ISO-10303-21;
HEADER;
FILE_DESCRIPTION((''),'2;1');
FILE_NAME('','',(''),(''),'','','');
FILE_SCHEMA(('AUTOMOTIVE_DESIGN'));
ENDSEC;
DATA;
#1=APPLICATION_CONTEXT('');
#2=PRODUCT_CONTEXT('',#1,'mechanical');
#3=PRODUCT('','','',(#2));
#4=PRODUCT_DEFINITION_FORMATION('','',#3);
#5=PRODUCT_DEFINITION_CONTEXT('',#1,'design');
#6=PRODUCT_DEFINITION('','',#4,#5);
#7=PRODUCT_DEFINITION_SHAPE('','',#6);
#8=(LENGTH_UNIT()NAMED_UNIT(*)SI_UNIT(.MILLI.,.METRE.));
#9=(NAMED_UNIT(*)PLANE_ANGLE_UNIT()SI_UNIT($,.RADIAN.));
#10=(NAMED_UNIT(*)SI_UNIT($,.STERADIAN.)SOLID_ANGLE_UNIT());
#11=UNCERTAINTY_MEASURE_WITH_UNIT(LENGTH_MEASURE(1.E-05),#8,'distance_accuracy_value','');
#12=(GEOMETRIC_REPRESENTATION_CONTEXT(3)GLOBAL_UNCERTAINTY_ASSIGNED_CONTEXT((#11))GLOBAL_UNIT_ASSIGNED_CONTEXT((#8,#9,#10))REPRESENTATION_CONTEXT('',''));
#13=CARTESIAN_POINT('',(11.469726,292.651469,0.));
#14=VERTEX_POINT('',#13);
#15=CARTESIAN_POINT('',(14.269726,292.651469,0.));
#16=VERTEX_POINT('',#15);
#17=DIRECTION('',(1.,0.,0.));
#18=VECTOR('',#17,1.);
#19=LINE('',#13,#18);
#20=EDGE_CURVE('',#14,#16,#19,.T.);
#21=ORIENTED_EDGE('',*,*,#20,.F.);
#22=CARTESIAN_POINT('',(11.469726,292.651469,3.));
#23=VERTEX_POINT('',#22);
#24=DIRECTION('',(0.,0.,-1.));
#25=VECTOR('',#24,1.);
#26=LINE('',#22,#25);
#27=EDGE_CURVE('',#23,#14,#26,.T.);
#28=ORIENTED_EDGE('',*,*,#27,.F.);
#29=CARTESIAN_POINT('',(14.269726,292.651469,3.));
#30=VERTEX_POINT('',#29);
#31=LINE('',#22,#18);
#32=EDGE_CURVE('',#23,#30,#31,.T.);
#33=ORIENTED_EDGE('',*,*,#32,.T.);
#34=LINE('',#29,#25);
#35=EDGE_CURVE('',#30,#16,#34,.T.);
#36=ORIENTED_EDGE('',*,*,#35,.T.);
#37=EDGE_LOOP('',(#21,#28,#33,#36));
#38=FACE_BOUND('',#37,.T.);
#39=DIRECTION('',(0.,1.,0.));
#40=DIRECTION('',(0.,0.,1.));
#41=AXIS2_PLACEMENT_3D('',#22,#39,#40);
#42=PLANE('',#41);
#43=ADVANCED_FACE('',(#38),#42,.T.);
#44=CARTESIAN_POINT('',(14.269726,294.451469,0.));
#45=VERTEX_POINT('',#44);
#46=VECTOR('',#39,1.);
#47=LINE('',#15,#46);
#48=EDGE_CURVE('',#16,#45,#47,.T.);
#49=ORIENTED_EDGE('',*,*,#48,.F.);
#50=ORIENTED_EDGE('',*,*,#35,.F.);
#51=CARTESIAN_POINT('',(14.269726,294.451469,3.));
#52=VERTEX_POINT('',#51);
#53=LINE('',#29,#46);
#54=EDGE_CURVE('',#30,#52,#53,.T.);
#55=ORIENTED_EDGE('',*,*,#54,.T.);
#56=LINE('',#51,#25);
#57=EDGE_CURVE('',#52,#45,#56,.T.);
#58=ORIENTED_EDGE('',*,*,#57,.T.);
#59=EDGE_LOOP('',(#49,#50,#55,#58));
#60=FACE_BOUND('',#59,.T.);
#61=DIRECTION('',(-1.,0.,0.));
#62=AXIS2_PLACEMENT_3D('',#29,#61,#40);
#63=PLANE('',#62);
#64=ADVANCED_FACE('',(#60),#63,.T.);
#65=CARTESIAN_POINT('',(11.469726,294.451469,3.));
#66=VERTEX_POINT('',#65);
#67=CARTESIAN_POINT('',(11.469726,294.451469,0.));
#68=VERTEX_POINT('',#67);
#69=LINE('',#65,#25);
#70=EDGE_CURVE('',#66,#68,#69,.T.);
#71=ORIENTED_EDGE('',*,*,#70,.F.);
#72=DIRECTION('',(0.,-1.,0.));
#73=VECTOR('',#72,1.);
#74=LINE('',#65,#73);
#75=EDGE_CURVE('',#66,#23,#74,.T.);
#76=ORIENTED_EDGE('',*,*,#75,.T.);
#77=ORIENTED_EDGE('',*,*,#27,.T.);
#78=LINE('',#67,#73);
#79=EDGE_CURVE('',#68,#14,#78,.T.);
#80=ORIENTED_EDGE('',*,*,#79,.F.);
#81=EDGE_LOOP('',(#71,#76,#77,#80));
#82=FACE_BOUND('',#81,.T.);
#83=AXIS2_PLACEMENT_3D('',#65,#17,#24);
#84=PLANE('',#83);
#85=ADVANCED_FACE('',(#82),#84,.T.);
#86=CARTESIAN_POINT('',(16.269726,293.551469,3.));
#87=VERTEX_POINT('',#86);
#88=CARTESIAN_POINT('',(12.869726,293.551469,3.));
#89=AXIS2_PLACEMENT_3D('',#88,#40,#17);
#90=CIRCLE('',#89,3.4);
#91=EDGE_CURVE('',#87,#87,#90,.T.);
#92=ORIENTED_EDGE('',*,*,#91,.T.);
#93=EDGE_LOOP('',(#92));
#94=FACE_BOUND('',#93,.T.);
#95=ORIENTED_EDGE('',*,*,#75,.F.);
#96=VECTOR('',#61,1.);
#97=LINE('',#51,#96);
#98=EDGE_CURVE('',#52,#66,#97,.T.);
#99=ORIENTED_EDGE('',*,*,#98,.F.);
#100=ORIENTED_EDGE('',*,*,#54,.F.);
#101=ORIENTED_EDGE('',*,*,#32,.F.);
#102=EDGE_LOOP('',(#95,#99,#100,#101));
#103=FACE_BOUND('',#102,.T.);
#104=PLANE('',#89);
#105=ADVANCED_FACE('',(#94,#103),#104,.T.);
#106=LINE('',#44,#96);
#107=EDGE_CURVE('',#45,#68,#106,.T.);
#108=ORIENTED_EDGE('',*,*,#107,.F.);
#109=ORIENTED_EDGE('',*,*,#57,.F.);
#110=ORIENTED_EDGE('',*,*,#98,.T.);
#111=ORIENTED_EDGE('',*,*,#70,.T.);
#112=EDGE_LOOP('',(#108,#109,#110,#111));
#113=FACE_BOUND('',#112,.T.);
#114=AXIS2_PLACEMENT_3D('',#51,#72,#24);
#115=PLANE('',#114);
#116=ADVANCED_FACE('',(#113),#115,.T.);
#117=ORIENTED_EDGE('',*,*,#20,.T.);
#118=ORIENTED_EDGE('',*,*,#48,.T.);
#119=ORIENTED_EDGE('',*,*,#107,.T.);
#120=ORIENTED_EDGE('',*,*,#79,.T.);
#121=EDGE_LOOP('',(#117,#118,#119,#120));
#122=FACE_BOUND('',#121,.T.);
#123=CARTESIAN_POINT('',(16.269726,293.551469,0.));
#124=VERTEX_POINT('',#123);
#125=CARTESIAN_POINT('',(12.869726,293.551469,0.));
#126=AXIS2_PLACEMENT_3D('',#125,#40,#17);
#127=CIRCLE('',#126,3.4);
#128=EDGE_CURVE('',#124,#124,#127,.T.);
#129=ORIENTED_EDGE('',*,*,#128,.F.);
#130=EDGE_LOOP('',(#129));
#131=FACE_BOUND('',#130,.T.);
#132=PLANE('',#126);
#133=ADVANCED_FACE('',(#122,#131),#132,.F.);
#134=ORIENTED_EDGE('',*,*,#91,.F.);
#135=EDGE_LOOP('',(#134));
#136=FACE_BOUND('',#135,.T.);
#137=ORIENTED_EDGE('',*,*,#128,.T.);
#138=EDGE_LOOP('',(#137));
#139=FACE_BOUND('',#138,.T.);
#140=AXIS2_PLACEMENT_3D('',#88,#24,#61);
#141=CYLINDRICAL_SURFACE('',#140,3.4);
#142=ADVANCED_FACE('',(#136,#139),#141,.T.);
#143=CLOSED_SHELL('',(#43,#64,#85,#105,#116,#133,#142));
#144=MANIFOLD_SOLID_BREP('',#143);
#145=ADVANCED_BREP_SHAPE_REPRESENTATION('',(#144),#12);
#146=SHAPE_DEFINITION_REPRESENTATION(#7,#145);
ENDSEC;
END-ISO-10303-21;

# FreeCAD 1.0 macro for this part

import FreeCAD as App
import Part
import Sketcher

doc = App.newDocument("Part")
body = doc.addObject("PartDesign::Body", "Body")

# Sketch on XY plane
sketch1 = body.newObject("Sketcher::SketchObject", "Sketch")
sketch1.AttachmentSupport = (doc.getObject("XY_Plane"), [""])
sketch1.MapMode = "FlatFace"
sketch1.addGeometry(Part.Circle(App.Vector(12.9, 293.6, 0), App.Vector(0, 0, 1), 3.4), False)
sketch1.addGeometry(Part.LineSegment(App.Vector(14.3, 292.7, 0), App.Vector(11.5, 292.7, 0)), False)
sketch1.addGeometry(Part.LineSegment(App.Vector(11.5, 292.7, 0), App.Vector(11.5, 294.5, 0)), False)
sketch1.addGeometry(Part.LineSegment(App.Vector(11.5, 294.5, 0), App.Vector(14.3, 294.5, 0)), False)
sketch1.addGeometry(Part.LineSegment(App.Vector(14.3, 294.5, 0), App.Vector(14.3, 292.7, 0)), False)
sketch1.addConstraint(Sketcher.Constraint("Coincident", 1, 2, 2, 1))
sketch1.addConstraint(Sketcher.Constraint("Coincident", 2, 2, 3, 1))
sketch1.addConstraint(Sketcher.Constraint("Coincident", 3, 2, 4, 1))
sketch1.addConstraint(Sketcher.Constraint("Coincident", 4, 2, 1, 1))
sketch1.addConstraint(Sketcher.Constraint("Horizontal", 1))
sketch1.addConstraint(Sketcher.Constraint("Vertical", 2))
sketch1.addConstraint(Sketcher.Constraint("Horizontal", 3))
sketch1.addConstraint(Sketcher.Constraint("Vertical", 4))
sketch1.addConstraint(Sketcher.Constraint("Diameter", 0, 6.8))
sketch1.addConstraint(Sketcher.Constraint("DistanceX", 1, 2, 1, 1, 2.8))
sketch1.addConstraint(Sketcher.Constraint("DistanceY", 2, 1, 2, 2, 1.8))
sketch1.addConstraint(Sketcher.Constraint("DistanceX", 1, 2, 0, 3, 1.4))
sketch1.addConstraint(Sketcher.Constraint("DistanceY", 1, 2, 0, 3, 0.9))
sketch1.addConstraint(Sketcher.Constraint("DistanceY", -1, 1, 0, 3, 293.551469))
sketch1.addConstraint(Sketcher.Constraint("DistanceX", -1, 1, 0, 3, 12.869726))
pad1 = body.newObject("PartDesign::Pad", "Pad")
pad1.Profile = sketch1
pad1.Length = 3

doc.recompute()
